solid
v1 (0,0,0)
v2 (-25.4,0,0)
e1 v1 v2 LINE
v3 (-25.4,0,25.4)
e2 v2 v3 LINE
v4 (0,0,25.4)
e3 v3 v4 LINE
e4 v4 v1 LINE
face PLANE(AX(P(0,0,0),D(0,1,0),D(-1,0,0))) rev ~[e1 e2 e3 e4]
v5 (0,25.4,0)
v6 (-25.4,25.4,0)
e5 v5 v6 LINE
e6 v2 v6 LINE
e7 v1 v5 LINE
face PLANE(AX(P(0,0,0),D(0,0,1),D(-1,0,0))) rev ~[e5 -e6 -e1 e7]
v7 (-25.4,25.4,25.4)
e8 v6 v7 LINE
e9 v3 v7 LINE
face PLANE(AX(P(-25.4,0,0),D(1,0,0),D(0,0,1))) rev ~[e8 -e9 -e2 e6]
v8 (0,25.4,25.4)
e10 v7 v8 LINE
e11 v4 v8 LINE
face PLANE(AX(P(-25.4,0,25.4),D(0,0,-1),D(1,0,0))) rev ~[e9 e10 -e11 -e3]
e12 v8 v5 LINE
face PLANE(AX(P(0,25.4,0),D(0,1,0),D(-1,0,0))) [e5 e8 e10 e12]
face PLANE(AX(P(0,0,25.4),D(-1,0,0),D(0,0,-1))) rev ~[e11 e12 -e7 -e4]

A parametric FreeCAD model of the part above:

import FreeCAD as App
import Part
import Sketcher
from FreeCAD import Vector
Q = App.Units.Quantity


def add_polygon(sketch, points):
    """Adds a closed chain of lines whose ends are joined by coincident constraints."""
    first, n = sketch.GeometryCount, len(points)
    for a, b in zip(points, points[1:] + points[:1]):
        sketch.addGeometry(Part.LineSegment(App.Vector(*a, 0), App.Vector(*b, 0)), False)
    for i in range(n):
        sketch.addConstraint(Sketcher.Constraint("Coincident", first + i, 2, first + (i + 1) % n, 1))

doc = App.newDocument("Part")
params = doc.addObject("Spreadsheet::Sheet", "Params")
for row, (alias, value) in enumerate([
    ("sketch1_width", "1 in"),
    ("pad1_length", "1 in"),
], start=1):
    params.set(f"A{row}", alias)
    params.set(f"B{row}", "=" + value)
    params.setAlias(f"B{row}", alias)

body = doc.addObject("PartDesign::Body", "Body")

sketch1 = body.newObject("Sketcher::SketchObject", "Sketch")
sketch1.AttachmentSupport = (doc.getObject("XZ_Plane"), [""])
sketch1.MapMode = "FlatFace"
add_polygon(sketch1, [(0, 25), (0, 0), (-25, 0), (-25, 25)])
sketch1.addConstraint([
    Sketcher.Constraint("Vertical", 0),
    Sketcher.Constraint("Horizontal", 1),
    Sketcher.Constraint("Vertical", 2),
    Sketcher.Constraint("Horizontal", 3),
    Sketcher.Constraint("Coincident", 0, 2, -1, 1),
    Sketcher.Constraint("Equal", 3, 0),
    Sketcher.Constraint("DistanceX", 1, 2, 1, 1, Q("1 in")),
])
sketch1.setExpression("Constraints[10]", "Params.sketch1_width")
pad1 = body.newObject("PartDesign::Pad", "Pad")
pad1.Profile = sketch1
pad1.setExpression("Length", "Params.pad1_length")
pad1.Reversed = True

doc.recompute()
